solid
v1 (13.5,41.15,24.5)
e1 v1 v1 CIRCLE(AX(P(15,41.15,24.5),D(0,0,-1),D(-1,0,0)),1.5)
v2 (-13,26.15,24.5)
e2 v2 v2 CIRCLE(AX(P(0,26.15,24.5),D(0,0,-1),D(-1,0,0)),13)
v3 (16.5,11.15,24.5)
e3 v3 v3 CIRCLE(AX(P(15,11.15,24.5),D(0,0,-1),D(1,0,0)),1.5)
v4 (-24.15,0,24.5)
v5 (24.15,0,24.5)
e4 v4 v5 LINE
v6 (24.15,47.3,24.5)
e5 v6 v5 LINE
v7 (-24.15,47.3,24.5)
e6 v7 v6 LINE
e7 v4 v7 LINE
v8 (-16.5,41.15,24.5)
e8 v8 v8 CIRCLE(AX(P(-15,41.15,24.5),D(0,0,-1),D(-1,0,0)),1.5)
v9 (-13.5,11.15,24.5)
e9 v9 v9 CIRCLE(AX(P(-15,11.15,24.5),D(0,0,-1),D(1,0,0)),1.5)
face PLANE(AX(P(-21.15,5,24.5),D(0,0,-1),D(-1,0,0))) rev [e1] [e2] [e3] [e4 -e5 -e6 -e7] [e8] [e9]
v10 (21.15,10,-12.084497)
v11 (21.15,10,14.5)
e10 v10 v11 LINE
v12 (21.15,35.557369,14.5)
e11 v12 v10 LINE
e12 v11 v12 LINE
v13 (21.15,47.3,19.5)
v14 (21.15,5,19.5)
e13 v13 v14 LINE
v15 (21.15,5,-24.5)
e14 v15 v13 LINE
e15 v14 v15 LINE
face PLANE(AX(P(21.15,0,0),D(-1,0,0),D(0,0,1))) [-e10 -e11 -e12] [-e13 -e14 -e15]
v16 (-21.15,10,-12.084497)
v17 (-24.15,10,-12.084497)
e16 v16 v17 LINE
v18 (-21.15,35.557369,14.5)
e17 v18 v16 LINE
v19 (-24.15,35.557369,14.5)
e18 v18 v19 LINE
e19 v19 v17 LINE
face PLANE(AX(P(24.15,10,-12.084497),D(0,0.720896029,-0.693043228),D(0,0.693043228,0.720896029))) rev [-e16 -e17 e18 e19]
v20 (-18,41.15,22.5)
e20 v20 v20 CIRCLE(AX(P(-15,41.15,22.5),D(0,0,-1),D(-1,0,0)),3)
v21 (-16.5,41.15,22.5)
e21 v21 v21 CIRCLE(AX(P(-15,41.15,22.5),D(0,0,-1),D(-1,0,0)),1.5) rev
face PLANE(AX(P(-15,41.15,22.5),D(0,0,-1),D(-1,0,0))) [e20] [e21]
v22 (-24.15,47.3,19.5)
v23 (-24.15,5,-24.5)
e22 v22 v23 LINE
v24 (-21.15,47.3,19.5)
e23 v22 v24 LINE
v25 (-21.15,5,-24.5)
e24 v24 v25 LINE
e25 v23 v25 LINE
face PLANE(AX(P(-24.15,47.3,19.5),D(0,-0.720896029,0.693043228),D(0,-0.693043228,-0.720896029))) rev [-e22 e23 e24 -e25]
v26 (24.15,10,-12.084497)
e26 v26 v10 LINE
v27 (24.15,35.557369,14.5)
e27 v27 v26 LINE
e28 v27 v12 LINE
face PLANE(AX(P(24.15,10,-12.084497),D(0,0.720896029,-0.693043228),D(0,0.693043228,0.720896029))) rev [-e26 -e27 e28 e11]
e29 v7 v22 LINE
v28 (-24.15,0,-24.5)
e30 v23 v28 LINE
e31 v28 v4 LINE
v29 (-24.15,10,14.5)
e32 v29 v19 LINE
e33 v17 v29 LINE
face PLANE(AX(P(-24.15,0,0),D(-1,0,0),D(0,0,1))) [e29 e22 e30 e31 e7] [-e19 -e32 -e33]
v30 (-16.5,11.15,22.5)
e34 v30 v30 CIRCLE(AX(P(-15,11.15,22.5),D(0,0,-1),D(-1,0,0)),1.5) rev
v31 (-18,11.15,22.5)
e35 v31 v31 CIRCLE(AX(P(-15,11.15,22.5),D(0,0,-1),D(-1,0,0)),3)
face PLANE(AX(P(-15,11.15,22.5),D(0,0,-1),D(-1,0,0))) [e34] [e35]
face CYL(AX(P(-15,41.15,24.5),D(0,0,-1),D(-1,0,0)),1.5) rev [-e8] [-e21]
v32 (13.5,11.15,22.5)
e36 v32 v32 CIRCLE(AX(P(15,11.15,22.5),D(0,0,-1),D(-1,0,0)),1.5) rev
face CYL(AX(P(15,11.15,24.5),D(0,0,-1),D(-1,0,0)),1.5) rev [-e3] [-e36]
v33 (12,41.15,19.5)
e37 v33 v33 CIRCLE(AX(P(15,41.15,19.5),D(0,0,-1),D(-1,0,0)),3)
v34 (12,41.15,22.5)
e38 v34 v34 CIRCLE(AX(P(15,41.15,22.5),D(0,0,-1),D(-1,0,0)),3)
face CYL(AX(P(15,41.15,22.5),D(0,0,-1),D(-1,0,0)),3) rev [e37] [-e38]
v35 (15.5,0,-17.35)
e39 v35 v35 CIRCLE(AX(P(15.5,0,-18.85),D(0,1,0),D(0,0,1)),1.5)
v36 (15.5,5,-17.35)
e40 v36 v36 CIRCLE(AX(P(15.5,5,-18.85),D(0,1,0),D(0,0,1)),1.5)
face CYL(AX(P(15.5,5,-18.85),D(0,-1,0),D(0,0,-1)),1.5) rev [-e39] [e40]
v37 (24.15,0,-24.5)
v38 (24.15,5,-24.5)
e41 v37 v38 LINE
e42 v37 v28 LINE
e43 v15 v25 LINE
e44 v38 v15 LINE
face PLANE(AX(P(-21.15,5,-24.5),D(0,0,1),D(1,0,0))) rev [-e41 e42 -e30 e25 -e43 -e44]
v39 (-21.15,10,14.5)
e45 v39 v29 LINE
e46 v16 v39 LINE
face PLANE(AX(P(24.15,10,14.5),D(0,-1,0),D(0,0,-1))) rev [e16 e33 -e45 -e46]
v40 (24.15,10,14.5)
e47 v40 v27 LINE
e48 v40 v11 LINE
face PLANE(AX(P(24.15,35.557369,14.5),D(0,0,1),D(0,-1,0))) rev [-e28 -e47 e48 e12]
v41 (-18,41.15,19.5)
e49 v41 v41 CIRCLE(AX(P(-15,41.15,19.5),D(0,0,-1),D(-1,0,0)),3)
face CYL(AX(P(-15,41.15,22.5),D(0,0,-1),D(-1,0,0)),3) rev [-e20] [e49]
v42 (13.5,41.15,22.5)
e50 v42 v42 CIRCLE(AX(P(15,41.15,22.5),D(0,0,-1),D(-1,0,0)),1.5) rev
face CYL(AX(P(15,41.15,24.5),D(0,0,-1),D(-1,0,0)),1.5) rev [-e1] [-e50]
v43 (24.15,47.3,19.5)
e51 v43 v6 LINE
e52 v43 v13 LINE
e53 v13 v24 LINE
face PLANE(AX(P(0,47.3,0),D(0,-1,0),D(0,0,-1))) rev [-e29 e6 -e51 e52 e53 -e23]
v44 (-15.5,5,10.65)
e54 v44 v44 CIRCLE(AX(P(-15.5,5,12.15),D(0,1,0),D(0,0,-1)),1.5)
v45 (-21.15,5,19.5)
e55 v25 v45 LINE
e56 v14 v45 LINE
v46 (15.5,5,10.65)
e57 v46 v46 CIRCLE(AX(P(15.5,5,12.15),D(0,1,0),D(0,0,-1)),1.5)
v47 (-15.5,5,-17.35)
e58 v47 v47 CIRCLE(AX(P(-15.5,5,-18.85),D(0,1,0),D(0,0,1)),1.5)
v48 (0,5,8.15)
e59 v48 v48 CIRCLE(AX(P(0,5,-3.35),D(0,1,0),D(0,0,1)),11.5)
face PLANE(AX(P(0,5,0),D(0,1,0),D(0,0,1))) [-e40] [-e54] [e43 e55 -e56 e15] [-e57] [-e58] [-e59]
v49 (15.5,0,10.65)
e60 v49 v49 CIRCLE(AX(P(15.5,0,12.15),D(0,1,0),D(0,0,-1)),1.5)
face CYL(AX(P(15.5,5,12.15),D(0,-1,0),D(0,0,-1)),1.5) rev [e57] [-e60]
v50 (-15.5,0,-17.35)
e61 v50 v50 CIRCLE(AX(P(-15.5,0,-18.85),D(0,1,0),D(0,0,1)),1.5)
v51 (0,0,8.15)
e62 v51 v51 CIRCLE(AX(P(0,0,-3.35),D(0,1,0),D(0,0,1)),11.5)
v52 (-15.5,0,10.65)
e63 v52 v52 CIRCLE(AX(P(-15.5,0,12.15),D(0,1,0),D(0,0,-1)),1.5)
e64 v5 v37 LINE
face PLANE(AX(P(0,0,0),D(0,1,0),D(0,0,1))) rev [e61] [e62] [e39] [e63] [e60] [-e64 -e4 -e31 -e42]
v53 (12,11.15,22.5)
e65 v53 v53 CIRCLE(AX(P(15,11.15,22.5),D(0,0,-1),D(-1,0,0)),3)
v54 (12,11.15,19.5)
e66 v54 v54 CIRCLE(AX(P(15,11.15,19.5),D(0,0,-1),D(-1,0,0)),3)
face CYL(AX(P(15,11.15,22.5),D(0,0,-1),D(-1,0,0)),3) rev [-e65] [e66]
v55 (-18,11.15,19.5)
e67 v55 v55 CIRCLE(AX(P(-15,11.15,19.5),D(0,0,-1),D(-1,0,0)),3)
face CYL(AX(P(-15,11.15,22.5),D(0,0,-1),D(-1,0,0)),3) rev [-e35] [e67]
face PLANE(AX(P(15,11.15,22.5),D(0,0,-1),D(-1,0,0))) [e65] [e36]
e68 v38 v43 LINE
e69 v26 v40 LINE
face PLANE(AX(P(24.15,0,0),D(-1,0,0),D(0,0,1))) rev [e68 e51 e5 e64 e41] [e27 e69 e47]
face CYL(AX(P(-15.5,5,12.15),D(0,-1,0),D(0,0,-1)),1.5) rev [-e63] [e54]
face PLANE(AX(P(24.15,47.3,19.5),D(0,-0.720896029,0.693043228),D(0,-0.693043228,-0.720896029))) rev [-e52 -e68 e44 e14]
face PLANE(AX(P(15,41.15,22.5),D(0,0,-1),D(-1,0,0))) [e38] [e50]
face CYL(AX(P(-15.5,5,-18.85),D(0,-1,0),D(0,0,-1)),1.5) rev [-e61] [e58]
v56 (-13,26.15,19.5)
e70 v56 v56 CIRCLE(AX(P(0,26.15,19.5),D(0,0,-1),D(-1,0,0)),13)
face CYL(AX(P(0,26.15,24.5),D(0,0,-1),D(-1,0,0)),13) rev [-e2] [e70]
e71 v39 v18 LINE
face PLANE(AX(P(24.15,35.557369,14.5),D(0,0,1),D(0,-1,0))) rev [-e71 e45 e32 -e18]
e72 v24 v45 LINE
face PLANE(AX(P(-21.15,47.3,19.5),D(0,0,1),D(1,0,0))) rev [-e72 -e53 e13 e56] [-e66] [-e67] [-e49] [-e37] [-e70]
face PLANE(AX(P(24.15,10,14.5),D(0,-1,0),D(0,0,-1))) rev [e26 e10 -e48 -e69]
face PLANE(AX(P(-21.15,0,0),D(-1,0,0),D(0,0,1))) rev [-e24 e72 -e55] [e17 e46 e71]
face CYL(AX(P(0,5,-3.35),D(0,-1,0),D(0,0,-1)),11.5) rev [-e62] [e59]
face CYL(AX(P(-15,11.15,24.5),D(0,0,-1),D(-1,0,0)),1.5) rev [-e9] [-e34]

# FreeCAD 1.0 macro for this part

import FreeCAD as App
import Part
import Sketcher

V = App.Vector
Q = App.Units.Quantity

doc = App.newDocument("Part")
params = doc.addObject("Spreadsheet::Sheet", "Params")
for row, (alias, value) in enumerate([
    ("sketch1_diameter", "3 mm"),
    ("sketch1_diameter2", "23 mm"),
    ("sketch1_height", "49 mm"),
    ("sketch1_width", "42.3 mm"),
    ("pad1_length", "5 mm"),
    ("sketch2_height", "5 mm"),
    ("sketch2_width", "42.3 mm"),
    ("pad2_length", "42.3 mm"),
    ("sketch3_diameter", "3 mm"),
    ("sketch3_diameter2", "26 mm"),
    ("sketch4_width", "5 mm"),
    ("sketch4_height", "49 mm"),
    ("sketch4_width2", "47.3 mm"),
    ("pad3_length", "3 mm"),
    ("sketch5_width", "5 mm"),
    ("sketch5_height", "49 mm"),
    ("sketch5_width2", "47.3 mm"),
    ("pad4_length", "3 mm"),
    ("sketch6_diameter", "6 mm"),
    ("pocket2_length", "3 mm"),
], start=1):
    params.set(f"A{row}", alias)
    params.set(f"B{row}", "=" + value)
    params.setAlias(f"B{row}", alias)

body = doc.addObject("PartDesign::Body", "Body")

sketch1 = body.newObject("Sketcher::SketchObject", "Sketch")
sketch1.AttachmentSupport = (doc.getObject("XZ_Plane"), [""])
sketch1.MapMode = "FlatFace"
sketch1.addGeometry([
    Part.LineSegment(V(-21.15, -24.5, 0), V(-21.15, 24.5, 0)),
    Part.LineSegment(V(-21.15, 24.5, 0), V(21.15, 24.5, 0)),
    Part.LineSegment(V(21.15, 24.5, 0), V(21.15, -24.5, 0)),
    Part.LineSegment(V(21.15, -24.5, 0), V(-21.15, -24.5, 0)),
    Part.Circle(V(-15.5, 12.15, 0), V(0, 0, 1), 1.5),
    Part.Circle(V(15.5, 12.15, 0), V(0, 0, 1), 1.5),
    Part.Circle(V(-15.5, -18.85, 0), V(0, 0, 1), 1.5),
    Part.Circle(V(0, -3.35, 0), V(0, 0, 1), 11.5),
    Part.Circle(V(15.5, -18.85, 0), V(0, 0, 1), 1.5),
], False)
sketch1.addConstraint([
    Sketcher.Constraint("Coincident", 0, 2, 1, 1),
    Sketcher.Constraint("Coincident", 1, 2, 2, 1),
    Sketcher.Constraint("Coincident", 2, 2, 3, 1),
    Sketcher.Constraint("Coincident", 3, 2, 0, 1),
    Sketcher.Constraint("Vertical", 0),
    Sketcher.Constraint("Horizontal", 1),
    Sketcher.Constraint("Vertical", 2),
    Sketcher.Constraint("Horizontal", 3),
    Sketcher.Constraint("Equal", 4, 5),
    Sketcher.Constraint("Equal", 5, 6),
    Sketcher.Constraint("Equal", 6, 8),
    Sketcher.Constraint("Symmetric", 0, 2, 2, 2, -1, 1),
    Sketcher.Constraint("Symmetric", 4, 3, 5, 3, -2),
    Sketcher.Constraint("Symmetric", 6, 3, 8, 3, -2),
    Sketcher.Constraint("PointOnObject", 7, 3, -2),
    Sketcher.Constraint("Vertical", 4, 3, 6, 3),
    Sketcher.Constraint("Diameter", 4, Q("3 mm")),
    Sketcher.Constraint("Diameter", 7, Q("23 mm")),
    Sketcher.Constraint("DistanceY", 0, 1, 0, 2, Q("49 mm")),
    Sketcher.Constraint("DistanceX", 1, 1, 1, 2, Q("42.3 mm")),
    Sketcher.Constraint("DistanceX", 4, 3, 5, 3, Q("31 mm")),
    Sketcher.Constraint("DistanceY", 6, 3, 4, 3, Q("31 mm")),
    Sketcher.Constraint("DistanceY", 7, 3, 4, 3, Q("15.5 mm")),
    Sketcher.Constraint("DistanceY", -1, 1, 4, 3, Q("12.15 mm")),
])
sketch1.setExpression("Constraints[16]", "Params.sketch1_diameter")
sketch1.setExpression("Constraints[17]", "Params.sketch1_diameter2")
sketch1.setExpression("Constraints[18]", "Params.sketch1_height")
sketch1.setExpression("Constraints[19]", "Params.sketch1_width")
pad1 = body.newObject("PartDesign::Pad", "Pad")
pad1.Profile = sketch1
pad1.setExpression("Length", "Params.pad1_length")
pad1.Reversed = True

sketch2 = body.newObject("Sketcher::SketchObject", "Sketch001")
sketch2.AttachmentSupport = (doc.getObject("XZ_Plane"), [""])
sketch2.MapMode = "FlatFace"
sketch2.AttachmentOffset = App.Placement(V(0, 0, -5), App.Rotation())
sketch2.addGeometry([
    Part.LineSegment(V(-21.15, 19.5, 0), V(-21.15, 24.5, 0)),
    Part.LineSegment(V(-21.15, 24.5, 0), V(21.15, 24.5, 0)),
    Part.LineSegment(V(21.15, 24.5, 0), V(21.15, 19.5, 0)),
    Part.LineSegment(V(21.15, 19.5, 0), V(-21.15, 19.5, 0)),
], False)
sketch2.addConstraint([
    Sketcher.Constraint("Coincident", 0, 2, 1, 1),
    Sketcher.Constraint("Coincident", 1, 2, 2, 1),
    Sketcher.Constraint("Coincident", 2, 2, 3, 1),
    Sketcher.Constraint("Coincident", 3, 2, 0, 1),
    Sketcher.Constraint("Vertical", 0),
    Sketcher.Constraint("Horizontal", 1),
    Sketcher.Constraint("Vertical", 2),
    Sketcher.Constraint("Horizontal", 3),
    Sketcher.Constraint("DistanceY", 0, 1, 0, 2, Q("5 mm")),
    Sketcher.Constraint("DistanceX", 1, 1, 1, 2, Q("42.3 mm")),
    Sketcher.Constraint("DistanceY", -1, 1, 0, 2, Q("24.5 mm")),
    Sketcher.Constraint("DistanceX", 0, 2, -1, 1, Q("21.15 mm")),
])
sketch2.setExpression("Constraints[8]", "Params.sketch2_height")
sketch2.setExpression("Constraints[9]", "Params.sketch2_width")
pad2 = body.newObject("PartDesign::Pad", "Pad001")
pad2.Profile = sketch2
pad2.setExpression("Length", "Params.pad2_length")
pad2.Reversed = True

sketch3 = body.newObject("Sketcher::SketchObject", "Sketch002")
sketch3.AttachmentSupport = (doc.getObject("XY_Plane"), [""])
sketch3.MapMode = "FlatFace"
sketch3.AttachmentOffset = App.Placement(V(0, 0, 19.5), App.Rotation())
sketch3.addGeometry([
    Part.Circle(V(15, 41.15, 0), V(0, 0, 1), 1.5),
    Part.Circle(V(-15, 41.15, 0), V(0, 0, 1), 1.5),
    Part.Circle(V(15, 11.15, 0), V(0, 0, 1), 1.5),
    Part.Circle(V(-15, 11.15, 0), V(0, 0, 1), 1.5),
    Part.Circle(V(0, 26.15, 0), V(0, 0, 1), 13),
], False)
sketch3.addConstraint([
    Sketcher.Constraint("Equal", 0, 1),
    Sketcher.Constraint("Equal", 1, 2),
    Sketcher.Constraint("Equal", 2, 3),
    Sketcher.Constraint("Symmetric", 0, 3, 1, 3, -2),
    Sketcher.Constraint("Symmetric", 2, 3, 3, 3, -2),
    Sketcher.Constraint("PointOnObject", 4, 3, -2),
    Sketcher.Constraint("Vertical", 0, 3, 2, 3),
    Sketcher.Constraint("Diameter", 0, Q("3 mm")),
    Sketcher.Constraint("Diameter", 4, Q("26 mm")),
    Sketcher.Constraint("DistanceX", -1, 1, 0, 3, Q("15 mm")),
    Sketcher.Constraint("DistanceY", 2, 3, 0, 3, Q("30 mm")),
    Sketcher.Constraint("DistanceY", 2, 3, 4, 3, Q("15 mm")),
    Sketcher.Constraint("DistanceY", -1, 1, 0, 3, Q("41.15 mm")),
])
sketch3.setExpression("Constraints[7]", "Params.sketch3_diameter")
sketch3.setExpression("Constraints[8]", "Params.sketch3_diameter2")
pocket1 = body.newObject("PartDesign::Pocket", "Pocket")
pocket1.Profile = sketch3
pocket1.Type = "ThroughAll"
pocket1.Reversed = True

sketch4 = body.newObject("Sketcher::SketchObject", "Sketch003")
sketch4.AttachmentSupport = (doc.getObject("YZ_Plane"), [""])
sketch4.MapMode = "FlatFace"
sketch4.AttachmentOffset = App.Placement(V(0, 0, 21.15), App.Rotation())
sketch4.addGeometry([
    Part.LineSegment(V(5, -24.5, 0), V(47.3, 19.5, 0)),
    Part.LineSegment(V(47.3, 19.5, 0), V(47.3, 24.5, 0)),
    Part.LineSegment(V(47.3, 24.5, 0), V(0, 24.5, 0)),
    Part.LineSegment(V(0, 24.5, 0), V(0, -24.5, 0)),
    Part.LineSegment(V(0, -24.5, 0), V(5, -24.5, 0)),
], False)
sketch4.addConstraint([
    Sketcher.Constraint("Coincident", 0, 2, 1, 1),
    Sketcher.Constraint("Coincident", 1, 2, 2, 1),
    Sketcher.Constraint("Coincident", 2, 2, 3, 1),
    Sketcher.Constraint("Coincident", 3, 2, 4, 1),
    Sketcher.Constraint("Coincident", 4, 2, 0, 1),
    Sketcher.Constraint("Vertical", 1),
    Sketcher.Constraint("Horizontal", 2),
    Sketcher.Constraint("Vertical", 3),
    Sketcher.Constraint("Horizontal", 4),
    Sketcher.Constraint("Symmetric", 2, 2, 3, 2, -1, 1),
    Sketcher.Constraint("Equal", 4, 1),
    Sketcher.Constraint("DistanceX", 4, 1, 4, 2, Q("5 mm")),
    Sketcher.Constraint("DistanceY", 3, 2, 3, 1, Q("49 mm")),
    Sketcher.Constraint("DistanceX", 2, 2, 2, 1, Q("47.3 mm")),
])
sketch4.setExpression("Constraints[11]", "Params.sketch4_width")
sketch4.setExpression("Constraints[12]", "Params.sketch4_height")
sketch4.setExpression("Constraints[13]", "Params.sketch4_width2")
pad3 = body.newObject("PartDesign::Pad", "Pad002")
pad3.Profile = sketch4
pad3.setExpression("Length", "Params.pad3_length")

sketch5 = body.newObject("Sketcher::SketchObject", "Sketch004")
sketch5.AttachmentSupport = (doc.getObject("YZ_Plane"), [""])
sketch5.MapMode = "FlatFace"
sketch5.AttachmentOffset = App.Placement(V(0, 0, -21.15), App.Rotation())
sketch5.addGeometry([
    Part.LineSegment(V(47.3, 19.5, 0), V(5, -24.5, 0)),
    Part.LineSegment(V(5, -24.5, 0), V(0, -24.5, 0)),
    Part.LineSegment(V(0, -24.5, 0), V(0, 24.5, 0)),
    Part.LineSegment(V(0, 24.5, 0), V(47.3, 24.5, 0)),
    Part.LineSegment(V(47.3, 24.5, 0), V(47.3, 19.5, 0)),
], False)
sketch5.addConstraint([
    Sketcher.Constraint("Coincident", 0, 2, 1, 1),
    Sketcher.Constraint("Coincident", 1, 2, 2, 1),
    Sketcher.Constraint("Coincident", 2, 2, 3, 1),
    Sketcher.Constraint("Coincident", 3, 2, 4, 1),
    Sketcher.Constraint("Coincident", 4, 2, 0, 1),
    Sketcher.Constraint("Horizontal", 1),
    Sketcher.Constraint("Vertical", 2),
    Sketcher.Constraint("Horizontal", 3),
    Sketcher.Constraint("Vertical", 4),
    Sketcher.Constraint("Symmetric", 1, 2, 2, 2, -1, 1),
    Sketcher.Constraint("Equal", 1, 4),
    Sketcher.Constraint("DistanceX", 1, 2, 1, 1, Q("5 mm")),
    Sketcher.Constraint("DistanceY", 2, 1, 2, 2, Q("49 mm")),
    Sketcher.Constraint("DistanceX", 3, 1, 3, 2, Q("47.3 mm")),
])
sketch5.setExpression("Constraints[11]", "Params.sketch5_width")
sketch5.setExpression("Constraints[12]", "Params.sketch5_height")
sketch5.setExpression("Constraints[13]", "Params.sketch5_width2")
pad4 = body.newObject("PartDesign::Pad", "Pad003")
pad4.Profile = sketch5
pad4.setExpression("Length", "Params.pad4_length")
pad4.Reversed = True

sketch6 = body.newObject("Sketcher::SketchObject", "Sketch005")
sketch6.AttachmentSupport = (doc.getObject("XY_Plane"), [""])
sketch6.MapMode = "FlatFace"
sketch6.AttachmentOffset = App.Placement(V(0, 0, 19.5), App.Rotation())
sketch6.addGeometry([
    Part.Circle(V(15, 41.15, 0), V(0, 0, 1), 3),
    Part.Circle(V(-15, 41.15, 0), V(0, 0, 1), 3),
    Part.Circle(V(-15, 11.15, 0), V(0, 0, 1), 3),
    Part.Circle(V(15, 11.15, 0), V(0, 0, 1), 3),
], False)
sketch6.addConstraint([
    Sketcher.Constraint("Equal", 0, 1),
    Sketcher.Constraint("Equal", 1, 2),
    Sketcher.Constraint("Equal", 2, 3),
    Sketcher.Constraint("Symmetric", 0, 3, 1, 3, -2),
    Sketcher.Constraint("Symmetric", 2, 3, 3, 3, -2),
    Sketcher.Constraint("Vertical", 1, 3, 2, 3),
    Sketcher.Constraint("Diameter", 0, Q("6 mm")),
    Sketcher.Constraint("DistanceX", -1, 1, 0, 3, Q("15 mm")),
    Sketcher.Constraint("DistanceY", 2, 3, 1, 3, Q("30 mm")),
    Sketcher.Constraint("DistanceY", -1, 1, 0, 3, Q("41.15 mm")),
])
sketch6.setExpression("Constraints[6]", "Params.sketch6_diameter")
pocket2 = body.newObject("PartDesign::Pocket", "Pocket001")
pocket2.Profile = sketch6
pocket2.setExpression("Length", "Params.pocket2_length")
pocket2.Reversed = True

sketch7 = body.newObject("Sketcher::SketchObject", "Sketch006")
sketch7.AttachmentSupport = (doc.getObject("YZ_Plane"), [""])
sketch7.MapMode = "FlatFace"
sketch7.AttachmentOffset = App.Placement(V(0, 0, -24.15), App.Rotation())
sketch7.addGeometry([
    Part.LineSegment(V(35.557369, 14.5, 0), V(10, -12.084497, 0)),
    Part.LineSegment(V(10, -12.084497, 0), V(10, 14.5, 0)),
    Part.LineSegment(V(10, 14.5, 0), V(35.557369, 14.5, 0)),
], False)
sketch7.addConstraint([
    Sketcher.Constraint("Coincident", 0, 2, 1, 1),
    Sketcher.Constraint("Coincident", 1, 2, 2, 1),
    Sketcher.Constraint("Coincident", 2, 2, 0, 1),
    Sketcher.Constraint("Vertical", 1),
    Sketcher.Constraint("Horizontal", 2),
    Sketcher.Constraint("DistanceX", -1, 1, 0, 2, Q("10 mm")),
    Sketcher.Constraint("DistanceY", -1, 1, 1, 2, Q("14.5 mm")),
    Sketcher.Constraint("DistanceX", 2, 1, 2, 2, Q("25.557369 mm")),
    Sketcher.Constraint("Distance", 0, Q("36.87702 mm")),
])
pocket3 = body.newObject("PartDesign::Pocket", "Pocket002")
pocket3.Profile = sketch7
pocket3.Type = "ThroughAll"
pocket3.Reversed = True

doc.recompute()
